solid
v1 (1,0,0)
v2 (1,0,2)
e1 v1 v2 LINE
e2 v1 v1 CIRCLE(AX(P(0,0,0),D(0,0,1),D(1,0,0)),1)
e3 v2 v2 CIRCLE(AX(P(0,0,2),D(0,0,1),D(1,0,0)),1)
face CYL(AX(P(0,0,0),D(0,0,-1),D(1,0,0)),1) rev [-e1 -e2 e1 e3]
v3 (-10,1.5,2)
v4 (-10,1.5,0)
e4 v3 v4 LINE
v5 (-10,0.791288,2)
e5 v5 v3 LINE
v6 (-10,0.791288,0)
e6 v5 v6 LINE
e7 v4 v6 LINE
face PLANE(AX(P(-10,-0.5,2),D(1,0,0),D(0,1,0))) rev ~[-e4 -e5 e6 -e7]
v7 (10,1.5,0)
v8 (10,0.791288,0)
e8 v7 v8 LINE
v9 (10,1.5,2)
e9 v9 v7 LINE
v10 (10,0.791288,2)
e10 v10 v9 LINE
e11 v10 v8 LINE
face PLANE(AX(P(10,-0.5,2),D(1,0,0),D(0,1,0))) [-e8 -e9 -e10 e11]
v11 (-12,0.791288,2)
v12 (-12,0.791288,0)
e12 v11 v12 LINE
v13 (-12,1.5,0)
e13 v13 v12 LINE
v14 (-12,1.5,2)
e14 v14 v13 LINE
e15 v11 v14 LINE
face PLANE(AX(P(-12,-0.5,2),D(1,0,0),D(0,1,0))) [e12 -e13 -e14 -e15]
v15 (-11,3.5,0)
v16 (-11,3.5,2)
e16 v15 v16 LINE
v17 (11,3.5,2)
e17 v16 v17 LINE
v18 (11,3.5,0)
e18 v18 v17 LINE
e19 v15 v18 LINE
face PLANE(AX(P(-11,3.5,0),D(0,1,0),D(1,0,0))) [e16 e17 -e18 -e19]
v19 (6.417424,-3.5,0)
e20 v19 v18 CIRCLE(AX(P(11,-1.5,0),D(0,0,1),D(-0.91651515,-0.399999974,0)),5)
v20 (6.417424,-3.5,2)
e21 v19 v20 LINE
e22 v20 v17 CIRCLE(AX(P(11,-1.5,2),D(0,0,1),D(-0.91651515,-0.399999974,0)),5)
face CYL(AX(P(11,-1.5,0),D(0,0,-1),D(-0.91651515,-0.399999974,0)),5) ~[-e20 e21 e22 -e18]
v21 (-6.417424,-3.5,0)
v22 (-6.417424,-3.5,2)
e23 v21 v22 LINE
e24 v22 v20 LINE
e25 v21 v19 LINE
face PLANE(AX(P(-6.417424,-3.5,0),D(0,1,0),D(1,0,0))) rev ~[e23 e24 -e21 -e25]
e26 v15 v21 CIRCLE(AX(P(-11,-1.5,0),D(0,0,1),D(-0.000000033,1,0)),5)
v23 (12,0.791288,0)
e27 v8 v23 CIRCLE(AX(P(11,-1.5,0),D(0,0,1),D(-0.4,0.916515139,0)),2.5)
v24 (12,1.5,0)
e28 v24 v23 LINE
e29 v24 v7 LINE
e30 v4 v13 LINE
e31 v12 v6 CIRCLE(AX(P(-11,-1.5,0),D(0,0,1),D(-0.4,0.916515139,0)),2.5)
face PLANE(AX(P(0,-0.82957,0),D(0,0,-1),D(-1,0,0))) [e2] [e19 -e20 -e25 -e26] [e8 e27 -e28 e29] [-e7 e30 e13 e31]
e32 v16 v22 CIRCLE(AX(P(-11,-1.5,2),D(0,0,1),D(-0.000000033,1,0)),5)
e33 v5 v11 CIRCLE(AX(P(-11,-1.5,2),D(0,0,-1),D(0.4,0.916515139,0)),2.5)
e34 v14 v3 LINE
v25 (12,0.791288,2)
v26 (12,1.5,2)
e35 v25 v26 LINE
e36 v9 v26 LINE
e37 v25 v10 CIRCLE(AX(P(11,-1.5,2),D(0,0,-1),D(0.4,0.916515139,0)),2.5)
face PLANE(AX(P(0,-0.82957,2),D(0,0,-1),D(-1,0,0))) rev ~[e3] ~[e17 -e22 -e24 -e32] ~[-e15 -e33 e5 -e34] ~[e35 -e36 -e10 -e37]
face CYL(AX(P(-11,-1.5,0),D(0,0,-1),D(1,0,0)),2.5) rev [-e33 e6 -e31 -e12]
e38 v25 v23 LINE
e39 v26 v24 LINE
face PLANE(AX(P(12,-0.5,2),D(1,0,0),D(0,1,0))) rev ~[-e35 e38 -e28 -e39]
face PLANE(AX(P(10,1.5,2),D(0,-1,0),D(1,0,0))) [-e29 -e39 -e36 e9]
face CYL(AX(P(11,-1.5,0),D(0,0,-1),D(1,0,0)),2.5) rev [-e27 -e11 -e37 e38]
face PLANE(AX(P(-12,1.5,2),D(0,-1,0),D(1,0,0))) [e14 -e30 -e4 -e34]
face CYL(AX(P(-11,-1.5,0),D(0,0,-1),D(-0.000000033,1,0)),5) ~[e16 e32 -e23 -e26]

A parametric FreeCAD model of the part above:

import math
import FreeCAD as App
import Part
import Sketcher
Q = App.Units.Quantity

doc = App.newDocument("Part")
body = doc.addObject("PartDesign::Body", "Body")

# Sketch on XY plane
sketch1 = doc.addObject("Sketcher::SketchObject", "Sketch")
body.addObject(sketch1)
sketch1.AttachmentSupport = (doc.XY_Plane, [""])
sketch1.MapMode = "FlatFace"
sketch1.addGeometry([
    Part.LineSegment(App.Vector(11, 3.5, 0), App.Vector(-11, 3.5, 0)),  # 0
    Part.ArcOfCircle(Part.Circle(App.Vector(-11, -1.5, 0), App.Vector(0, 0, 1), 5), math.radians(90), math.radians(336)),  # 1
    Part.LineSegment(App.Vector(-6.4, -3.5, 0), App.Vector(6.4, -3.5, 0)),  # 2
    Part.ArcOfCircle(Part.Circle(App.Vector(11, -1.5, 0), App.Vector(0, 0, 1), 5), math.radians(-156), math.radians(90)),  # 3
    Part.Circle(App.Vector(11, -1.5, 0), App.Vector(0, 0, 1), 2.5),  # 4
    Part.Circle(App.Vector(-11, -1.5, 0), App.Vector(0, 0, 1), 2.5),  # 5
    Part.Circle(App.Vector(0, 0, 0), App.Vector(0, 0, 1), 1),  # 6
], False)
sketch1.addConstraint([
    Sketcher.Constraint("Tangent", 0, 2, 1, 1),
    Sketcher.Constraint("Coincident", 1, 2, 2, 1),
    Sketcher.Constraint("Coincident", 2, 2, 3, 1),
    Sketcher.Constraint("Tangent", 3, 2, 0, 1),
    Sketcher.Constraint("Horizontal", 0),
    Sketcher.Constraint("Horizontal", 2),
    Sketcher.Constraint("Coincident", 6, 3, -1, 1),
    Sketcher.Constraint("Coincident", 4, 3, 3, 3),
    Sketcher.Constraint("Coincident", 5, 3, 1, 3),
    Sketcher.Constraint("Equal", 1, 3),
    Sketcher.Constraint("Equal", 4, 5),
    Sketcher.Constraint("Diameter", 4, Q("5 mm")),
    Sketcher.Constraint("Diameter", 6, Q("2 mm")),
    Sketcher.Constraint("Radius", 1, Q("5 mm")),
    Sketcher.Constraint("DistanceX", 0, 2, 0, 1, Q("22 mm")),
    Sketcher.Constraint("DistanceX", 1, 3, -1, 1, Q("11 mm")),
    Sketcher.Constraint("DistanceY", 1, 2, 1, 3, Q("2 mm")),
    Sketcher.Constraint("DistanceY", 1, 3, -1, 1, Q("1.5 mm")),
])
pad1 = doc.addObject("PartDesign::Pad", "Pad")
body.addObject(pad1)
pad1.Profile = sketch1
pad1.Length = 2

# Sketch on XY plane
sketch2 = doc.addObject("Sketcher::SketchObject", "Sketch001")
body.addObject(sketch2)
sketch2.AttachmentSupport = (doc.XY_Plane, [""])
sketch2.MapMode = "FlatFace"
sketch2.AttachmentOffset = App.Placement(App.Vector(0, 0, 2), App.Rotation())
sketch2.addGeometry([
    Part.LineSegment(App.Vector(-12, 1.5, 0), App.Vector(-12, -0.5, 0)),  # 0
    Part.LineSegment(App.Vector(-12, -0.5, 0), App.Vector(-10, -0.5, 0)),  # 1
    Part.LineSegment(App.Vector(-10, -0.5, 0), App.Vector(-10, 1.5, 0)),  # 2
    Part.LineSegment(App.Vector(-10, 1.5, 0), App.Vector(-12, 1.5, 0)),  # 3
    Part.LineSegment(App.Vector(10, 1.5, 0), App.Vector(10, -0.5, 0)),  # 4
    Part.LineSegment(App.Vector(10, -0.5, 0), App.Vector(12, -0.5, 0)),  # 5
    Part.LineSegment(App.Vector(12, -0.5, 0), App.Vector(12, 1.5, 0)),  # 6
    Part.LineSegment(App.Vector(12, 1.5, 0), App.Vector(10, 1.5, 0)),  # 7
], False)
sketch2.addConstraint([
    Sketcher.Constraint("Coincident", 0, 2, 1, 1),
    Sketcher.Constraint("Coincident", 1, 2, 2, 1),
    Sketcher.Constraint("Coincident", 2, 2, 3, 1),
    Sketcher.Constraint("Coincident", 3, 2, 0, 1),
    Sketcher.Constraint("Coincident", 4, 2, 5, 1),
    Sketcher.Constraint("Coincident", 5, 2, 6, 1),
    Sketcher.Constraint("Coincident", 6, 2, 7, 1),
    Sketcher.Constraint("Coincident", 7, 2, 4, 1),
    Sketcher.Constraint("Vertical", 0),
    Sketcher.Constraint("Horizontal", 1),
    Sketcher.Constraint("Vertical", 2),
    Sketcher.Constraint("Horizontal", 3),
    Sketcher.Constraint("Vertical", 4),
    Sketcher.Constraint("Horizontal", 5),
    Sketcher.Constraint("Vertical", 6),
    Sketcher.Constraint("Horizontal", 7),
    Sketcher.Constraint("Symmetric", 1, 2, 4, 2, -2),
    Sketcher.Constraint("Symmetric", 3, 2, 6, 2, -2),
    Sketcher.Constraint("Equal", 7, 0),
    Sketcher.Constraint("DistanceX", 1, 1, 1, 2, Q("2 mm")),
    Sketcher.Constraint("DistanceX", 0, 2, -1, 1, Q("12 mm")),
    Sketcher.Constraint("DistanceY", 0, 2, -1, 1, Q("0.5 mm")),
])
pocket1 = doc.addObject("PartDesign::Pocket", "Pocket")
body.addObject(pocket1)
pocket1.Profile = sketch2
pocket1.Type = "ThroughAll"

doc.recompute()
